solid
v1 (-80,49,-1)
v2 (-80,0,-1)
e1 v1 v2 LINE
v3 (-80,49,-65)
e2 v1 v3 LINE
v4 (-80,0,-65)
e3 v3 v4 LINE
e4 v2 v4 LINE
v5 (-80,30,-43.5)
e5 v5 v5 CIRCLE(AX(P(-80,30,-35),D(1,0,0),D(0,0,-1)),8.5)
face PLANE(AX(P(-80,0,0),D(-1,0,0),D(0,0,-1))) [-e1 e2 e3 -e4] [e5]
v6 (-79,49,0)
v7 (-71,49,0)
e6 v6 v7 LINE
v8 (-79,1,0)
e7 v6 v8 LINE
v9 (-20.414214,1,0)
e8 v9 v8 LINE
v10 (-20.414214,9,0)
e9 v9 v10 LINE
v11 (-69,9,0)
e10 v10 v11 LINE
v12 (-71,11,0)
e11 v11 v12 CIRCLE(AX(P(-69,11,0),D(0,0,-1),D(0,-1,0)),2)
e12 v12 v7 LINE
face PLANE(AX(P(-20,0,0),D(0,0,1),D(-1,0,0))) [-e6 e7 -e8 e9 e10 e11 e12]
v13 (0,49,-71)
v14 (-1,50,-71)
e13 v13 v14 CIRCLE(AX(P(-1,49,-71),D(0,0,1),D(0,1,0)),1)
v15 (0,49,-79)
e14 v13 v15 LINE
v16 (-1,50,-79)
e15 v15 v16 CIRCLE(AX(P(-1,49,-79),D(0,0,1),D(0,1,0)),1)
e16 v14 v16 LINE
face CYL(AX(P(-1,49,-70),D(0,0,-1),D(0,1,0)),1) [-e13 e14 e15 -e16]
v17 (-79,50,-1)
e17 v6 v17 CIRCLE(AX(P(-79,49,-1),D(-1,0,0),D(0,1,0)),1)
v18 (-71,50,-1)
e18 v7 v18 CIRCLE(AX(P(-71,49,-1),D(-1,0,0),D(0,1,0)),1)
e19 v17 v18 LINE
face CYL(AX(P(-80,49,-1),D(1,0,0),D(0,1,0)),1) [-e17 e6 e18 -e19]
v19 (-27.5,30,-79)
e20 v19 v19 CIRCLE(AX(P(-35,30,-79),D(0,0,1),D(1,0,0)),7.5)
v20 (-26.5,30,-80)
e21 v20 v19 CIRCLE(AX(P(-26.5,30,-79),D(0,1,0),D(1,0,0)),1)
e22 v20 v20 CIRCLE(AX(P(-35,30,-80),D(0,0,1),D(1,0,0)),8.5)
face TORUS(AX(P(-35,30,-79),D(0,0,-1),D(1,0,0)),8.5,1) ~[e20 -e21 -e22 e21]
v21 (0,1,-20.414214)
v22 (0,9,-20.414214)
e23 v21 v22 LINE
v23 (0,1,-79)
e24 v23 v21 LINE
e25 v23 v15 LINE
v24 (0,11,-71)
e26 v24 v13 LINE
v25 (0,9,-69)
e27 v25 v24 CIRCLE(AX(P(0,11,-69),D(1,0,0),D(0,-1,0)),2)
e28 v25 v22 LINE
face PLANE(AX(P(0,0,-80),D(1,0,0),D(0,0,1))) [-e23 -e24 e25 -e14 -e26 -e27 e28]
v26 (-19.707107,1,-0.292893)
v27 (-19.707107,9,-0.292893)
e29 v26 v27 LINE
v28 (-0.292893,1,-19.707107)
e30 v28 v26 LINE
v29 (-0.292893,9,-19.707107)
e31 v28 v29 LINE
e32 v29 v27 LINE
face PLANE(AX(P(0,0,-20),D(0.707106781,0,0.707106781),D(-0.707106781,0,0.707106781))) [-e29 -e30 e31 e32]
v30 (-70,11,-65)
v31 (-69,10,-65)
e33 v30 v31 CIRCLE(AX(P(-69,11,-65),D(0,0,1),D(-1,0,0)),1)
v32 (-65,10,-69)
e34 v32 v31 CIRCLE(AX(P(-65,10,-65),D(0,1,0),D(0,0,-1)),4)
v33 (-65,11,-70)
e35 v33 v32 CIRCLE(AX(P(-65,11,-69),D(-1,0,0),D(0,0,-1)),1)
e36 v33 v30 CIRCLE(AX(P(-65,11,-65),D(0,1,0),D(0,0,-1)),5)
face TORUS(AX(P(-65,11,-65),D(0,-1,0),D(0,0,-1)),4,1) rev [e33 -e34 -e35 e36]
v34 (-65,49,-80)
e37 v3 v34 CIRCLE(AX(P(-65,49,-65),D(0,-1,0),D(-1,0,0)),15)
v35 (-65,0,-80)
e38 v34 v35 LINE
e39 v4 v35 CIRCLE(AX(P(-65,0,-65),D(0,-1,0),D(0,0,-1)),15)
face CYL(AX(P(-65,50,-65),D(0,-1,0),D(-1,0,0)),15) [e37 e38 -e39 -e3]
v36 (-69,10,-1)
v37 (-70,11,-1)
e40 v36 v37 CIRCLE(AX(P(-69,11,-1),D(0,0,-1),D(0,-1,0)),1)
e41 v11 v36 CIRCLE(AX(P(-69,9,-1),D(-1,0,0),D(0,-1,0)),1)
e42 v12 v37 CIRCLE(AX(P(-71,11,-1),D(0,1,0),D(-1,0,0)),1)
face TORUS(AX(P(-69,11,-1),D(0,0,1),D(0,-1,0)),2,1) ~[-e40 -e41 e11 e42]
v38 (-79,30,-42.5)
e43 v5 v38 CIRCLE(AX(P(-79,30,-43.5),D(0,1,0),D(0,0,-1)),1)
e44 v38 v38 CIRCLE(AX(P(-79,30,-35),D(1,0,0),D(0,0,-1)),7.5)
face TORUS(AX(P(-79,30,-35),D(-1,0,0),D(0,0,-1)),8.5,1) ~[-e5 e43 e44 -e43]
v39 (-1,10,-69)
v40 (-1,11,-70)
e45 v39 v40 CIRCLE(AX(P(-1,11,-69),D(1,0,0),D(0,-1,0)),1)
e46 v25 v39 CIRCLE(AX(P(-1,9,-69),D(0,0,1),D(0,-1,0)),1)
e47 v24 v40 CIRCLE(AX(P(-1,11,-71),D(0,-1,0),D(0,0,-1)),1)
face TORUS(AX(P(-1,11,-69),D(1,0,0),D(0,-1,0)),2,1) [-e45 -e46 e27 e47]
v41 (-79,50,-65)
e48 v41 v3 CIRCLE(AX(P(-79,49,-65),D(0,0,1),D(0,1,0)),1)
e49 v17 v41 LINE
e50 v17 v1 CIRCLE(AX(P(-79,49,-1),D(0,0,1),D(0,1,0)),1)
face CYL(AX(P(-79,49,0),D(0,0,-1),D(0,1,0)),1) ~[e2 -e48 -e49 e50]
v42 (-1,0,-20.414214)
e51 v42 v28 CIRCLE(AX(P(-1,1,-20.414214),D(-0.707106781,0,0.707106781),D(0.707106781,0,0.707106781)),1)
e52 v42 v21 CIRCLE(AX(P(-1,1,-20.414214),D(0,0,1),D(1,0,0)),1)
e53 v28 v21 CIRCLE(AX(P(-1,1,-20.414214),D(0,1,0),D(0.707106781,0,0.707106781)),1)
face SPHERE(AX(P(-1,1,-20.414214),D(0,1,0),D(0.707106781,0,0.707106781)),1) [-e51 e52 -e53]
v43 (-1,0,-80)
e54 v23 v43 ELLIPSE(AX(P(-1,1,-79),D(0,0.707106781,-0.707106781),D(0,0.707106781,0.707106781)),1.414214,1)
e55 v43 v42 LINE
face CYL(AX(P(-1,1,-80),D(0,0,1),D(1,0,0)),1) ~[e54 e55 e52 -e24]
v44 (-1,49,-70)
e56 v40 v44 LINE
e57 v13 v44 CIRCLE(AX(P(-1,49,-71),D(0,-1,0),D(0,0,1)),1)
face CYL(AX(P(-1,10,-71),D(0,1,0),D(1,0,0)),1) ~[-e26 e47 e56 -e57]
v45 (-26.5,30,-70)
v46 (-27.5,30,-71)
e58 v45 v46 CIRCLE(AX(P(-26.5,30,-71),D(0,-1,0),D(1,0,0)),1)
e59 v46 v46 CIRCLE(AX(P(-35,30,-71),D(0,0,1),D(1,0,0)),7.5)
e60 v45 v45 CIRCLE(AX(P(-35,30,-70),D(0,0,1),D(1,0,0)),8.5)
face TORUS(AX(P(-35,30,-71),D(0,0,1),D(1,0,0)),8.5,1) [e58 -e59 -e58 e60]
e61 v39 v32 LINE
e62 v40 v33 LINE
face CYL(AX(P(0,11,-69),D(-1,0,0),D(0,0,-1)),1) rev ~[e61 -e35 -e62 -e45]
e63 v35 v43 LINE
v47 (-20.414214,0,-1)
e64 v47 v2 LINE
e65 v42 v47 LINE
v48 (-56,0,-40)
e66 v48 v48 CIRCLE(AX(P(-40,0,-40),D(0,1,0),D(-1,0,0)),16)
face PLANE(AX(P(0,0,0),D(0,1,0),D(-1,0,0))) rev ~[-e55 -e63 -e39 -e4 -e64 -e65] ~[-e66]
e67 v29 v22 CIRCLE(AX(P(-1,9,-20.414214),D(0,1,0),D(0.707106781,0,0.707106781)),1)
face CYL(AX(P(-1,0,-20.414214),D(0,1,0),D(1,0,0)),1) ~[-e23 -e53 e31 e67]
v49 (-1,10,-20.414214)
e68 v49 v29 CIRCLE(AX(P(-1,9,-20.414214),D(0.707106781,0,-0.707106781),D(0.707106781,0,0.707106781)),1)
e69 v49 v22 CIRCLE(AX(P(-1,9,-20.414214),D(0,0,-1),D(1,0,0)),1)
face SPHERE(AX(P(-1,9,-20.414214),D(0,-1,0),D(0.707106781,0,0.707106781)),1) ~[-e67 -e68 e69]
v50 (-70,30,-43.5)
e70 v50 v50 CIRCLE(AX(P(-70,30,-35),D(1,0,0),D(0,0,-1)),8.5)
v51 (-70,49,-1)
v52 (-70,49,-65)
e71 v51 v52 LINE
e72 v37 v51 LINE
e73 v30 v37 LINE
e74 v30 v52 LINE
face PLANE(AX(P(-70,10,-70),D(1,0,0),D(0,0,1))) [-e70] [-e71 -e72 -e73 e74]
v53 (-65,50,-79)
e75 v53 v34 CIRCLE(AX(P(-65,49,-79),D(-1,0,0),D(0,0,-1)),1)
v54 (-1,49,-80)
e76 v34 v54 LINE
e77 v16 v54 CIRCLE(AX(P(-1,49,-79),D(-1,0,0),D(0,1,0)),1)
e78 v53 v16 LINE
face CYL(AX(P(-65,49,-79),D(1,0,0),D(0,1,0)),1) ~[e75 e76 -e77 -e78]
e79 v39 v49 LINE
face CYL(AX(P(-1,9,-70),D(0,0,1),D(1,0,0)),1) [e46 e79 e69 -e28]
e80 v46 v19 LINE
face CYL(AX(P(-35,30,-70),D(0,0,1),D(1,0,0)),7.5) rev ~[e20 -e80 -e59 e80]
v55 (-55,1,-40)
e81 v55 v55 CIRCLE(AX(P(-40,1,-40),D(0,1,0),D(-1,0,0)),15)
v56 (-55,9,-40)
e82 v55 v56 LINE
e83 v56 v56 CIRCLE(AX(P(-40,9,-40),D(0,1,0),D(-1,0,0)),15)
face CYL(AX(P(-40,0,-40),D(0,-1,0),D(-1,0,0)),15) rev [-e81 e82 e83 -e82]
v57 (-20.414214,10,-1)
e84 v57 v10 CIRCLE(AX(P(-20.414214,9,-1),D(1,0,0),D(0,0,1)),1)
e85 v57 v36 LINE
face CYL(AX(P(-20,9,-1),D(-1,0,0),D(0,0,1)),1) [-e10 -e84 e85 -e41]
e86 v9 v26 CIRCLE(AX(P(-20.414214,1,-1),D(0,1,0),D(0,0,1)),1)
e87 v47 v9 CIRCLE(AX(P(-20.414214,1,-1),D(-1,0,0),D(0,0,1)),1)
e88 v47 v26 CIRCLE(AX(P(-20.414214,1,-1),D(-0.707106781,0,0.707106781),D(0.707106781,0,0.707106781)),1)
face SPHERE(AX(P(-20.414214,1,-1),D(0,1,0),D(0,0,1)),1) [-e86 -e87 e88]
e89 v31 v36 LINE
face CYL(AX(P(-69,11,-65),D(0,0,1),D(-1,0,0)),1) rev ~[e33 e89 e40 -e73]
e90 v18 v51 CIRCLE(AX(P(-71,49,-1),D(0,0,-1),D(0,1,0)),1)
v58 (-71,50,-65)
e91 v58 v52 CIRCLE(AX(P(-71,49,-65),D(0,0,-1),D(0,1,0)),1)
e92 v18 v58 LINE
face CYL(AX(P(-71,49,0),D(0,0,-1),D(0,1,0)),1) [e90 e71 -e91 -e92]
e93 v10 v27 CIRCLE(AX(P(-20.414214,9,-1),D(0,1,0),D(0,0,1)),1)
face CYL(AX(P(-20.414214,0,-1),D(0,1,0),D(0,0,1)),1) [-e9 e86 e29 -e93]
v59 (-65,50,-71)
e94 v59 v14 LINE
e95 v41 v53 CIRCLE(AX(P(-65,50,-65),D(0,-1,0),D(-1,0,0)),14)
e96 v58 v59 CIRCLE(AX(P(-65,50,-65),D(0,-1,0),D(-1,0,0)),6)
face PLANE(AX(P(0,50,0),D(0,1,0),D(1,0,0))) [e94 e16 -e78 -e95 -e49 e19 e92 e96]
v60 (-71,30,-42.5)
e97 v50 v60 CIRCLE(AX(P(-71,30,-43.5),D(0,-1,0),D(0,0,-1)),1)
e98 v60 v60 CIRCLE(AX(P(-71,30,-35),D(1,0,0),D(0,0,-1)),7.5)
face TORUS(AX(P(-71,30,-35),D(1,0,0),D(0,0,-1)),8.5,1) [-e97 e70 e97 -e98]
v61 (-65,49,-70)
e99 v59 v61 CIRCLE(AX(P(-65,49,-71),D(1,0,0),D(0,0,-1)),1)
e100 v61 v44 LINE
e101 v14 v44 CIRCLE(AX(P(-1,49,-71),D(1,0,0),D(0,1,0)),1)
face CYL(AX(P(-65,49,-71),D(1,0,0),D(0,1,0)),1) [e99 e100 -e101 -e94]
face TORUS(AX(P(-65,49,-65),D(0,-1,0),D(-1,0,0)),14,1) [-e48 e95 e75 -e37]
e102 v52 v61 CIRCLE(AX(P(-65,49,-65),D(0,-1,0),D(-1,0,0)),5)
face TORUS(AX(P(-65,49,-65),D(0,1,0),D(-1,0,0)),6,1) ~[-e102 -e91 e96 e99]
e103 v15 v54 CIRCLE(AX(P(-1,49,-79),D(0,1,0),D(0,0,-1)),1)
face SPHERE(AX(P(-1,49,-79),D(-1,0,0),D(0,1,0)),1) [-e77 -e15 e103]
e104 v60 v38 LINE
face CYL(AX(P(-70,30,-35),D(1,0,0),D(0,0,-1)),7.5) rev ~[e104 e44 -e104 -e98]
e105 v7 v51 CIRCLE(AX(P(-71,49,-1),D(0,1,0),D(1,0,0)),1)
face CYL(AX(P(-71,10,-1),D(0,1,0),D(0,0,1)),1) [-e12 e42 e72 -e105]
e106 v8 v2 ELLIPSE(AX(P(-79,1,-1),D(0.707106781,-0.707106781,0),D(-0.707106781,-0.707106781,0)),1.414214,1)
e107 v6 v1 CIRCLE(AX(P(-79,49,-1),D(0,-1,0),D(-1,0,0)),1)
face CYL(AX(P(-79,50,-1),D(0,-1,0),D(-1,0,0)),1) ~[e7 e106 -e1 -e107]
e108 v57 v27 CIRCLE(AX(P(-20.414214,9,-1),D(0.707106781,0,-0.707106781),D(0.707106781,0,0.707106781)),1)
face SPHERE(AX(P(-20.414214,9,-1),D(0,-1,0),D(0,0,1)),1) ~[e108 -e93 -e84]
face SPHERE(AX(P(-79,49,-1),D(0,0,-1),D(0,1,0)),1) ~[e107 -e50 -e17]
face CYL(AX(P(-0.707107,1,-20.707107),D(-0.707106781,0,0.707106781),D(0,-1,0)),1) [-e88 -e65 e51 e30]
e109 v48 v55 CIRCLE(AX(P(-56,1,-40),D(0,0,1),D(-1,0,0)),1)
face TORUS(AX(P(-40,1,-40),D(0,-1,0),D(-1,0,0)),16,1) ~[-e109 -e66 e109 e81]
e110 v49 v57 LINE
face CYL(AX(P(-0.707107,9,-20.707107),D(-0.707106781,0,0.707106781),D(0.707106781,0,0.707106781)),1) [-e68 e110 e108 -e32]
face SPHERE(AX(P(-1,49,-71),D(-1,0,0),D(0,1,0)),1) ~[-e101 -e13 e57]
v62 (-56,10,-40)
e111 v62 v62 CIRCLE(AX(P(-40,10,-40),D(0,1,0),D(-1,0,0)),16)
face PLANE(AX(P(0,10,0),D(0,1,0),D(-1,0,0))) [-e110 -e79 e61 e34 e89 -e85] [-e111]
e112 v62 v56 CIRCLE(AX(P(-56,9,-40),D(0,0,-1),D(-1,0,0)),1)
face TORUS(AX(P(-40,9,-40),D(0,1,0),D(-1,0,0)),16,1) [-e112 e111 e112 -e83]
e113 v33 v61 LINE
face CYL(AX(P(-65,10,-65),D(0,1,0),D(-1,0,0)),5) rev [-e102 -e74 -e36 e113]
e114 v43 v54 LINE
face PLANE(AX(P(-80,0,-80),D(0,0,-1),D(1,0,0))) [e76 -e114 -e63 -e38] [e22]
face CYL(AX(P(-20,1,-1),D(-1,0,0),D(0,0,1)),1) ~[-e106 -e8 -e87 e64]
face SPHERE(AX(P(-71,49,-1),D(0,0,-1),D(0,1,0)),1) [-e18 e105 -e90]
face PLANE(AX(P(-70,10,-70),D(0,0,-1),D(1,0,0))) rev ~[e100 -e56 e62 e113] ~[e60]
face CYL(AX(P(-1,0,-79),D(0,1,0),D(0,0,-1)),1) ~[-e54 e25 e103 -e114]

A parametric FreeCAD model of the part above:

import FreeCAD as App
import Part
import Sketcher

V = App.Vector


def edges_at(feature, points):
    """Names of the edges that pass closest to the given points."""
    edges = feature.Shape.Edges
    near = lambda p: min(range(len(edges)), key=lambda i: edges[i].distToShape(Part.Vertex(*p))[0])
    return sorted({f"Edge{near(p) + 1}" for p in points})

doc = App.newDocument("Part")
body = doc.addObject("PartDesign::Body", "Body")

sketch1 = doc.addObject("Sketcher::SketchObject", "Sketch")
body.addObject(sketch1)
sketch1.AttachmentSupport = (doc.XZ_Plane, [""])
sketch1.MapMode = "FlatFace"
sketch1.addGeometry([
    Part.LineSegment(V(-80, 0, 0), V(-20, 0, 0)),
    Part.LineSegment(V(-20, 0, 0), V(0, -20, 0)),
    Part.LineSegment(V(0, -20, 0), V(0, -80, 0)),
    Part.LineSegment(V(0, -80, 0), V(-80, -80, 0)),
    Part.LineSegment(V(-80, -80, 0), V(-80, 0, 0)),
    Part.Circle(V(-40, -40, 0), V(0, 0, 1), 15),
], False)
sketch1.addConstraint([
    Sketcher.Constraint("Coincident", 0, 2, 1, 1),
    Sketcher.Constraint("Coincident", 1, 2, 2, 1),
    Sketcher.Constraint("Coincident", 2, 2, 3, 1),
    Sketcher.Constraint("Coincident", 3, 2, 4, 1),
    Sketcher.Constraint("Coincident", 4, 2, 0, 1),
    Sketcher.Constraint("Horizontal", 0),
    Sketcher.Constraint("Vertical", 2),
    Sketcher.Constraint("Horizontal", 3),
    Sketcher.Constraint("Vertical", 4),
    Sketcher.Constraint("PointOnObject", 0, 2, -1),
    Sketcher.Constraint("PointOnObject", 1, 2, -2),
    Sketcher.Constraint("Equal", 0, 2),
    Sketcher.Constraint("Equal", 3, 4),
    Sketcher.Constraint("Diameter", 5, 30.0),
    Sketcher.Constraint("DistanceX", 3, 2, 3, 1, 80.0),
    Sketcher.Constraint("DistanceX", 5, 3, -1, 1, 40.0),
    Sketcher.Constraint("DistanceY", 5, 3, -1, 1, 40.0),
    Sketcher.Constraint("DistanceX", 0, 2, -1, 1, 20.0),
])
pad1 = doc.addObject("PartDesign::Pad", "Pad")
body.addObject(pad1)
pad1.Profile = sketch1
pad1.Length = 10
pad1.Reversed = True

sketch2 = doc.addObject("Sketcher::SketchObject", "Sketch001")
body.addObject(sketch2)
sketch2.AttachmentSupport = (doc.XZ_Plane, [""])
sketch2.MapMode = "FlatFace"
sketch2.AttachmentOffset = App.Placement(V(0, 0, -10), App.Rotation())
sketch2.addGeometry([
    Part.LineSegment(V(-80, -80, 0), V(-80, 0, 0)),
    Part.LineSegment(V(-80, 0, 0), V(-70, 0, 0)),
    Part.LineSegment(V(-70, 0, 0), V(-70, -70, 0)),
    Part.LineSegment(V(-70, -70, 0), V(0, -70, 0)),
    Part.LineSegment(V(0, -70, 0), V(0, -80, 0)),
    Part.LineSegment(V(0, -80, 0), V(-80, -80, 0)),
], False)
sketch2.addConstraint([
    Sketcher.Constraint("Coincident", 0, 2, 1, 1),
    Sketcher.Constraint("Coincident", 1, 2, 2, 1),
    Sketcher.Constraint("Coincident", 2, 2, 3, 1),
    Sketcher.Constraint("Coincident", 3, 2, 4, 1),
    Sketcher.Constraint("Coincident", 4, 2, 5, 1),
    Sketcher.Constraint("Coincident", 5, 2, 0, 1),
    Sketcher.Constraint("Vertical", 0),
    Sketcher.Constraint("Horizontal", 1),
    Sketcher.Constraint("Vertical", 2),
    Sketcher.Constraint("Horizontal", 3),
    Sketcher.Constraint("Vertical", 4),
    Sketcher.Constraint("Horizontal", 5),
    Sketcher.Constraint("PointOnObject", 0, 2, -1),
    Sketcher.Constraint("PointOnObject", 3, 2, -2),
    Sketcher.Constraint("Equal", 5, 0),
    Sketcher.Constraint("Equal", 3, 2),
    Sketcher.Constraint("DistanceX", 1, 1, 1, 2, 10.0),
    Sketcher.Constraint("DistanceX", 3, 1, 3, 2, 70.0),
])
pad2 = doc.addObject("PartDesign::Pad", "Pad001")
body.addObject(pad2)
pad2.Profile = sketch2
pad2.Length = 40
pad2.Reversed = True
doc.recompute()

fillet = doc.addObject("PartDesign::Fillet", "Fillet")
body.addObject(fillet)
fillet.Base = (pad2, edges_at(pad2, [(-70, 30, -70)]))
fillet.Radius = 5
doc.recompute()

fillet2 = doc.addObject("PartDesign::Fillet", "Fillet001")
body.addObject(fillet2)
fillet2.Base = (fillet, edges_at(fillet, [(-80, 25, -80)]))
fillet2.Radius = 15

sketch3 = doc.addObject("Sketcher::SketchObject", "Sketch002")
body.addObject(sketch3)
sketch3.AttachmentSupport = (doc.XY_Plane, [""])
sketch3.MapMode = "FlatFace"
sketch3.AttachmentOffset = App.Placement(V(0, 0, -70), App.Rotation())
sketch3.addGeometry(Part.Circle(V(-35, 30, 0), V(0, 0, 1), 8), False)
sketch3.addConstraint([
    Sketcher.Constraint("Diameter", 0, 15.0),
    Sketcher.Constraint("DistanceX", 0, 3, -1, 1, 35.0),
    Sketcher.Constraint("DistanceY", -1, 1, 0, 3, 30.0),
])
pocket1 = doc.addObject("PartDesign::Pocket", "Pocket")
body.addObject(pocket1)
pocket1.Profile = sketch3
pocket1.Length = 10

sketch4 = doc.addObject("Sketcher::SketchObject", "Sketch003")
body.addObject(sketch4)
sketch4.AttachmentSupport = (doc.YZ_Plane, [""])
sketch4.MapMode = "FlatFace"
sketch4.AttachmentOffset = App.Placement(V(0, 0, -70), App.Rotation())
sketch4.addGeometry(Part.Circle(V(30, -35, 0), V(0, 0, 1), 8), False)
sketch4.addConstraint([
    Sketcher.Constraint("Diameter", 0, 15.0),
    Sketcher.Constraint("DistanceY", 0, 3, -1, 1, 35.0),
    Sketcher.Constraint("DistanceX", -1, 1, 0, 3, 30.0),
])
pocket2 = doc.addObject("PartDesign::Pocket", "Pocket001")
body.addObject(pocket2)
pocket2.Profile = sketch4
pocket2.Length = 10
doc.recompute()

fillet3 = doc.addObject("PartDesign::Fillet", "Fillet002")
body.addObject(fillet3)
fillet3.Base = (pocket2, edges_at(pocket2, [
    (-32.5, 50, -70),
    (-70, 50, -32.5),
    (-75.607, 50, -75.607),
    (-32.5, 50, -80),
    (-80, 50, -32.5),
    (-75, 50, 0),
    (0, 50, -75),
    (0, 30, -70),
    (-70, 30, 0),
    (-70, 10, -32.5),
    (-68.535, 10, -68.535),
    (-32.5, 10, -70),
    (0, 0, -50),
    (0, 25, -80),
    (0, 10, -45),
    (0, 5, -20),
    (-10, 0, -10),
    (-10, 10, -10),
    (-20, 5, 0),
    (-50, 0, 0),
    (-45, 10, 0),
    (-80, 25, 0),
    (-42.5, 30, -70),
    (-70, 30, -27.5),
    (-42.5, 30, -80),
    (-80, 30, -27.5),
    (-25, 0, -40),
    (-25, 10, -40),
]))
fillet3.Radius = 1

doc.recompute()
